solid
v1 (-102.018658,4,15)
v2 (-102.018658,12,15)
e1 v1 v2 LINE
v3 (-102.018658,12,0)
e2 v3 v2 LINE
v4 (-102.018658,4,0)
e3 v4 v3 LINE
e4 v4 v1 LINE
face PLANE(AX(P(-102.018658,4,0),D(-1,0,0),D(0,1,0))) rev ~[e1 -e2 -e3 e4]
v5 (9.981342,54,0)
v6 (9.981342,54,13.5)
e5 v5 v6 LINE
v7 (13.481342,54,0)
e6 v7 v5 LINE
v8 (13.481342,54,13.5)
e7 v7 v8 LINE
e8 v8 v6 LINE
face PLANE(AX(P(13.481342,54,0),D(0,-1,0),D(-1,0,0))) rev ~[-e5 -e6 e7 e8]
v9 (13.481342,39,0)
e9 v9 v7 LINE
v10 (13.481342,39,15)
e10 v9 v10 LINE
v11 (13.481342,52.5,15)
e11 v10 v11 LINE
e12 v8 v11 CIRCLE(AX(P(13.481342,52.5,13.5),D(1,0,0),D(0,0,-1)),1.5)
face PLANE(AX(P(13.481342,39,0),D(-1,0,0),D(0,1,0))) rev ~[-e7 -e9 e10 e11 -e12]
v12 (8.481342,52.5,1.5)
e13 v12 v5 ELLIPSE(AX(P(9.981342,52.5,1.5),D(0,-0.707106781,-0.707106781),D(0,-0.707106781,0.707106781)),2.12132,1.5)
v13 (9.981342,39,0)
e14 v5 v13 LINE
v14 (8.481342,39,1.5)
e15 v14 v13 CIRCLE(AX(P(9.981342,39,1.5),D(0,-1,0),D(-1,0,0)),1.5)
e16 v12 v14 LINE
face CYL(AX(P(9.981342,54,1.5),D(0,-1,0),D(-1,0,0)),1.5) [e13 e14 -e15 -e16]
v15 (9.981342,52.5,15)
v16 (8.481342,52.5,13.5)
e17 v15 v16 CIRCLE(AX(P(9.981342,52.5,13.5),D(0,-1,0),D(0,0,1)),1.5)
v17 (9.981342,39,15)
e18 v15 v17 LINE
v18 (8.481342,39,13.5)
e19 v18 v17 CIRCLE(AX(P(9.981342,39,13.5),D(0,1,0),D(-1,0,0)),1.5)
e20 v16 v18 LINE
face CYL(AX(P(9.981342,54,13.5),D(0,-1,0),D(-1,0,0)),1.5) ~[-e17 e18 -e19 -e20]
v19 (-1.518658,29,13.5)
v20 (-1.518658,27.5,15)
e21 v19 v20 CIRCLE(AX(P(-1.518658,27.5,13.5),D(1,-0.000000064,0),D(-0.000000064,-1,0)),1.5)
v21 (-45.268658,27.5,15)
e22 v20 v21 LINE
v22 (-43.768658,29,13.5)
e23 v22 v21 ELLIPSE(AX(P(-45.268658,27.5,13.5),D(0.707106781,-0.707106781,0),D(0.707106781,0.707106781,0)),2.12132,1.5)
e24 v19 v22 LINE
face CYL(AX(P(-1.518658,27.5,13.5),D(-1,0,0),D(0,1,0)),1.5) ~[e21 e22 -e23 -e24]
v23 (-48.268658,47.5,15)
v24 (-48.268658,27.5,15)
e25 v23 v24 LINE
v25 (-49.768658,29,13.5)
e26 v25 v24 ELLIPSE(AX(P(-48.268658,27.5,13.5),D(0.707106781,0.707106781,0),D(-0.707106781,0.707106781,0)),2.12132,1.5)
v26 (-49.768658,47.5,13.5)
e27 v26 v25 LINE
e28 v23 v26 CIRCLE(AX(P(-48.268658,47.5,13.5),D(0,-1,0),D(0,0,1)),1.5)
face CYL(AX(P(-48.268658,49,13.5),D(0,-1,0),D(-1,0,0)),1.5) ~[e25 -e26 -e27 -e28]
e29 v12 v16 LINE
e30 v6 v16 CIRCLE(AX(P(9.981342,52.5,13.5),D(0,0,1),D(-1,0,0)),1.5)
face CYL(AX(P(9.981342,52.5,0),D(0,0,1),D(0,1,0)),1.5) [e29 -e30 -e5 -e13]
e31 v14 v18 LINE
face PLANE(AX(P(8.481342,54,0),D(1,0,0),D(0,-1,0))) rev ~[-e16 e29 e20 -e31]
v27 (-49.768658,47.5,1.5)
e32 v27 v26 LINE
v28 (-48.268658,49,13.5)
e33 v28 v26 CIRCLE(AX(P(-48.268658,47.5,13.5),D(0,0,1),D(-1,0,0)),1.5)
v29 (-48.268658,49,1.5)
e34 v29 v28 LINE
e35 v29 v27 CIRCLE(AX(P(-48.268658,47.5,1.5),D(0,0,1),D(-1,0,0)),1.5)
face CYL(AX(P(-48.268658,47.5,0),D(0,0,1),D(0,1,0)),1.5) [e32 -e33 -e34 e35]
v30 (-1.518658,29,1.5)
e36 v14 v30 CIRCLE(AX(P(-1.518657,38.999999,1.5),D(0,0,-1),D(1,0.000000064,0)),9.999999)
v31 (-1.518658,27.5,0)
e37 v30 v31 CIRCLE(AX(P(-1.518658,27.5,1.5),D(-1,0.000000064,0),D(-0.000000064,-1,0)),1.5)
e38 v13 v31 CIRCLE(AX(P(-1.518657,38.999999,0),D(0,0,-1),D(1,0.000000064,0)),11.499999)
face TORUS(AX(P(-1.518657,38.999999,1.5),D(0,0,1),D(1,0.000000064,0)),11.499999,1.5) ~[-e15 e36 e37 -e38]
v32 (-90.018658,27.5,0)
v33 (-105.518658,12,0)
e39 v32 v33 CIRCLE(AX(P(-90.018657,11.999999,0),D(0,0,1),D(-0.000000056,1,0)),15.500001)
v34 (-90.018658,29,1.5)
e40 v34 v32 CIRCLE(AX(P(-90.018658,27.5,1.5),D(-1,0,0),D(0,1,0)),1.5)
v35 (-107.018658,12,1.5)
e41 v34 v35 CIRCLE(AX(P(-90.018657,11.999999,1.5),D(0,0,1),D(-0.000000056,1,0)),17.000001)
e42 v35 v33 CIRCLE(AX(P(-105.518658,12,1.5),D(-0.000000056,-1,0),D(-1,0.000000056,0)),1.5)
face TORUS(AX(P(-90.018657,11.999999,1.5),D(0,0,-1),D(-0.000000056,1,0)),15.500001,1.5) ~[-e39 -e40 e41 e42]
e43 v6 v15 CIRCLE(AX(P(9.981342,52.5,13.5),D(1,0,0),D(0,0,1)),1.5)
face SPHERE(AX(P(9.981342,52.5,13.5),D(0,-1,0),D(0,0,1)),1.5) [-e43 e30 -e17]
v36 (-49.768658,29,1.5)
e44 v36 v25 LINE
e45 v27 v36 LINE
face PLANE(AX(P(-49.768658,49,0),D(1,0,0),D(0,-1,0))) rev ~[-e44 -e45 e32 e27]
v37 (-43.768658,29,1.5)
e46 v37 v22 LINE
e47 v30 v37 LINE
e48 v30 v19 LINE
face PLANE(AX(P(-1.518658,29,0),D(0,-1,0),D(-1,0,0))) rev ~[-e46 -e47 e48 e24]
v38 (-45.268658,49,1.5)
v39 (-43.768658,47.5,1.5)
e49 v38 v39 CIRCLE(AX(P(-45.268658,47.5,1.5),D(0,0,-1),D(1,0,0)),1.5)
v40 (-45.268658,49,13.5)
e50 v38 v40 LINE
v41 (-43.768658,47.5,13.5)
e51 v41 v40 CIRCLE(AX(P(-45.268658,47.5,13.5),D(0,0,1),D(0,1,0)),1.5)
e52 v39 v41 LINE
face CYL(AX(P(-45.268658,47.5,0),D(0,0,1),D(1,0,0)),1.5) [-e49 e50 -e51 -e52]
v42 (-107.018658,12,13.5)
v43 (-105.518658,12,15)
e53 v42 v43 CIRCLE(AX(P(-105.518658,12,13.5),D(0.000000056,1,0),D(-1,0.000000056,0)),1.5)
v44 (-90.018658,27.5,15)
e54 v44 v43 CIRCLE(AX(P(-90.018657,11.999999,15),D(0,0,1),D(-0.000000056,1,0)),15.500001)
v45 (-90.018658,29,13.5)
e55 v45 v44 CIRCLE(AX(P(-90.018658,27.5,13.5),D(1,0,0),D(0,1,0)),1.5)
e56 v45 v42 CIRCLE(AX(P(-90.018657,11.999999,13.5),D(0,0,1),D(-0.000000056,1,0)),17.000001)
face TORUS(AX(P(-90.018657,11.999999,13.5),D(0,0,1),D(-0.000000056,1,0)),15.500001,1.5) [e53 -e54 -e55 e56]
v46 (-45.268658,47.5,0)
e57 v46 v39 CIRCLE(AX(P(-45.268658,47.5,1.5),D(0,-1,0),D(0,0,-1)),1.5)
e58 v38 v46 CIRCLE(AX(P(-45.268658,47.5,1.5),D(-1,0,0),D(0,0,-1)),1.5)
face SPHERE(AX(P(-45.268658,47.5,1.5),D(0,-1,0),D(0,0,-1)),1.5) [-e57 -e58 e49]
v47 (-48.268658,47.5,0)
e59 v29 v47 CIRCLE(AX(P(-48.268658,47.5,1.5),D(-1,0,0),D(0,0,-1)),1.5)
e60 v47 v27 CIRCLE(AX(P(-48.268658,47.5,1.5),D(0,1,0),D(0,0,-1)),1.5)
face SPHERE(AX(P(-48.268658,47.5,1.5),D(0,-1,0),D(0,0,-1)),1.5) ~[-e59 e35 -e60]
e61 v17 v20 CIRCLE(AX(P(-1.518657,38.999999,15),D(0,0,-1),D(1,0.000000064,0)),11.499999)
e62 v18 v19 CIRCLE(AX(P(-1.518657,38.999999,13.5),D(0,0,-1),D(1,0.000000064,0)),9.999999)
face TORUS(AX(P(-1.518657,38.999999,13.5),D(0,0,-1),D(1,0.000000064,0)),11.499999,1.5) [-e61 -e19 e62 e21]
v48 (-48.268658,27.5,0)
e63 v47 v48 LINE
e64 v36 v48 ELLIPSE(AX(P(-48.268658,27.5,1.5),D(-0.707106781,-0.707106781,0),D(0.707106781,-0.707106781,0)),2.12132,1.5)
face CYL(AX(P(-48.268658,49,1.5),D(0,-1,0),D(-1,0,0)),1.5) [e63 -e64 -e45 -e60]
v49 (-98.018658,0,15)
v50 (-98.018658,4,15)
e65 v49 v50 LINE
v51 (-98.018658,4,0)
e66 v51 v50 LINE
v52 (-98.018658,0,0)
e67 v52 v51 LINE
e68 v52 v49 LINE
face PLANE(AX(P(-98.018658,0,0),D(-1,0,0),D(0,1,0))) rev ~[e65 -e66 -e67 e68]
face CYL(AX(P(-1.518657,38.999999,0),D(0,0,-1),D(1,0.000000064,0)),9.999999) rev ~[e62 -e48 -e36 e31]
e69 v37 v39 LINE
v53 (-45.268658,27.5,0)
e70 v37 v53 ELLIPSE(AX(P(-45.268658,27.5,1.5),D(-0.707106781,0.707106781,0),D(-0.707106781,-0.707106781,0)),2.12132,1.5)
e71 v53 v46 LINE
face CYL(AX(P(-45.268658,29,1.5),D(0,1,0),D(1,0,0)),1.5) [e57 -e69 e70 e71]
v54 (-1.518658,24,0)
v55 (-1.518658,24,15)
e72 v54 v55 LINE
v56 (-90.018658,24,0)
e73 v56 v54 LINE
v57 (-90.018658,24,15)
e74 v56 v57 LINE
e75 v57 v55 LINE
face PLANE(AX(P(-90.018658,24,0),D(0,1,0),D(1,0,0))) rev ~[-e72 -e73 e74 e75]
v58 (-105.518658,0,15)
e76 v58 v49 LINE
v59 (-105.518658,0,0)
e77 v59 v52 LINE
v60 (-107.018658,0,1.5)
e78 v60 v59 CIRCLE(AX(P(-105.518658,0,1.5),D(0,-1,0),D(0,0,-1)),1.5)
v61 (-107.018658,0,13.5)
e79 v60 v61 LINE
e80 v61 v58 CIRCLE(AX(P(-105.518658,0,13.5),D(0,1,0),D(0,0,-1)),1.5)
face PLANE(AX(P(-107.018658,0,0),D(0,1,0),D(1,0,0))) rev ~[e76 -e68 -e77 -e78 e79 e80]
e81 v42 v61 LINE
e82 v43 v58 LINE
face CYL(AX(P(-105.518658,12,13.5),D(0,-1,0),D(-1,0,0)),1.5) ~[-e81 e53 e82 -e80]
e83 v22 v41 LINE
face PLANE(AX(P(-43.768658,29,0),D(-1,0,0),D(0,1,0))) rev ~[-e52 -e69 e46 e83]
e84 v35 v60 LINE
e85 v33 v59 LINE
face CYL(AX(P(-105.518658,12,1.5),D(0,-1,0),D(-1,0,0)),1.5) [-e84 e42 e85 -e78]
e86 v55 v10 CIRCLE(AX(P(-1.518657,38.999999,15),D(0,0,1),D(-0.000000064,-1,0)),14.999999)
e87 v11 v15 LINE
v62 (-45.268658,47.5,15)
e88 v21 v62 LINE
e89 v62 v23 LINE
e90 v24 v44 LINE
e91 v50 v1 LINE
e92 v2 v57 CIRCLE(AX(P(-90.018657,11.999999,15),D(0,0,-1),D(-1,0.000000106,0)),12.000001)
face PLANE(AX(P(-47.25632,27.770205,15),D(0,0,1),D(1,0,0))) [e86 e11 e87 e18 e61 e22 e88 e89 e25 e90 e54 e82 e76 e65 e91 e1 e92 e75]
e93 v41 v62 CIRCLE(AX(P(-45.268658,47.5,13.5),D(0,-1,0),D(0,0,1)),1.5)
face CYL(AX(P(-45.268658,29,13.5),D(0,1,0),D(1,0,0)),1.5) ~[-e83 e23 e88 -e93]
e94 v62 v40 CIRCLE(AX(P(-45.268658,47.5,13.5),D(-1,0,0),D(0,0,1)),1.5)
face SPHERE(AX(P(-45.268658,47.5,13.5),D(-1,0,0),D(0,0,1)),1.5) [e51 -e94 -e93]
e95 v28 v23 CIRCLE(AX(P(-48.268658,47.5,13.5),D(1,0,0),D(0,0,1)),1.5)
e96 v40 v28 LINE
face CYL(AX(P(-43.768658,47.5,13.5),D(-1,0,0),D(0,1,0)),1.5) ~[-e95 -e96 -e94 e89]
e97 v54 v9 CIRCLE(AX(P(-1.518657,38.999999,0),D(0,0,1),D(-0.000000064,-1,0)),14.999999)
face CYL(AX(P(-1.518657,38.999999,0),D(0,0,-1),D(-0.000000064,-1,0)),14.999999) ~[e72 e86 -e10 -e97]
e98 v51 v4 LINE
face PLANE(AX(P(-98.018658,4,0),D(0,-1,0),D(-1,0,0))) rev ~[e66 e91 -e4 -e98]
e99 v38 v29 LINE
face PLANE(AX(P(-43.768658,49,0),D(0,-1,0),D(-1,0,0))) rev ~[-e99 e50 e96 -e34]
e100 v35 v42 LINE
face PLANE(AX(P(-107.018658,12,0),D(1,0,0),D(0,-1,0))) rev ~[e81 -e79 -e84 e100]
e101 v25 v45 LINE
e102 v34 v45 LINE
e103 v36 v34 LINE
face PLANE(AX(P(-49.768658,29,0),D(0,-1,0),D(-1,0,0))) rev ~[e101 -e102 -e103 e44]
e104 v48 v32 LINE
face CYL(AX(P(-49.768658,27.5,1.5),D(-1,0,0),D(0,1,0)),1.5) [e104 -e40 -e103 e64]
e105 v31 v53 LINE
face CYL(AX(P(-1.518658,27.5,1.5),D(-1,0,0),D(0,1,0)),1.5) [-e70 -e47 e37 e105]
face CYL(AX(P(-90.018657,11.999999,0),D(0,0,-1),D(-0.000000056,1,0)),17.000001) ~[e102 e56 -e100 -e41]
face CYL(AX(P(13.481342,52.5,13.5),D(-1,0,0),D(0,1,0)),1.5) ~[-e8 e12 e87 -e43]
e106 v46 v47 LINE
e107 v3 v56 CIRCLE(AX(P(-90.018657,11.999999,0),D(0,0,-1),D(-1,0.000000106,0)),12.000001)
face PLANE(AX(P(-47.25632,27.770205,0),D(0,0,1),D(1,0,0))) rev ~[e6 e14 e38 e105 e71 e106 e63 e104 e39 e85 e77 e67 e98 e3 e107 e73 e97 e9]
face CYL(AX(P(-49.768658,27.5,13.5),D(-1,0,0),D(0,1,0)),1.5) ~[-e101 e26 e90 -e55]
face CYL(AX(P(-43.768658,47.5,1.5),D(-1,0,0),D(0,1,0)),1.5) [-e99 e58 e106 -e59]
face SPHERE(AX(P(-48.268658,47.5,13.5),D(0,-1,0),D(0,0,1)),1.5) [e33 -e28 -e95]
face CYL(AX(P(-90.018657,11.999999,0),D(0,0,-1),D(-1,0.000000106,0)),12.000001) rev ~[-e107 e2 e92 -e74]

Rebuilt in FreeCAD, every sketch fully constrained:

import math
import FreeCAD as App
import Part
import Sketcher

V = App.Vector
Q = App.Units.Quantity


def edges_at(feature, points):
    """Names of the edges that pass closest to the given points."""
    edges = feature.Shape.Edges
    near = lambda p: min(range(len(edges)), key=lambda i: edges[i].distToShape(Part.Vertex(*p))[0])
    return sorted({f"Edge{near(p) + 1}" for p in points})

doc = App.newDocument("Part")
params = doc.addObject("Spreadsheet::Sheet", "Params")
for row, (alias, value) in enumerate([
    ("sketch1_radius", "17.000001 mm"),
    ("sketch1_radius2", "12.000001 mm"),
    ("sketch1_radius3", "14.999999 mm"),
    ("sketch1_width", "9 mm"),
    ("sketch1_width2", "6 mm"),
    ("pad1_length", "15 mm"),
    ("fillet_radius", "1.5 mm"),
], start=1):
    params.set(f"A{row}", alias)
    params.set(f"B{row}", "=" + value)
    params.setAlias(f"B{row}", alias)

body = doc.addObject("PartDesign::Body", "Body")

# Sketch on XY plane
sketch1 = body.newObject("Sketcher::SketchObject", "Sketch")
sketch1.AttachmentSupport = (doc.getObject("XY_Plane"), [""])
sketch1.MapMode = "FlatFace"
sketch1.addGeometry(Part.LineSegment(V(-49.8, 29, 0), V(-90, 29, 0)), False)
sketch1.addGeometry(Part.ArcOfCircle(Part.Circle(V(-90, 12, 0), V(0, 0, 1), 17), math.radians(90), math.radians(180)), False)
sketch1.addGeometry(Part.LineSegment(V(-107, 12, 0), V(-107, 0, 0)), False)
sketch1.addGeometry(Part.LineSegment(V(-107, 0, 0), V(-98, 0, 0)), False)
sketch1.addGeometry(Part.LineSegment(V(-98, 0, 0), V(-98, 4, 0)), False)
sketch1.addGeometry(Part.LineSegment(V(-98, 4, 0), V(-102, 4, 0)), False)
sketch1.addGeometry(Part.LineSegment(V(-102, 4, 0), V(-102, 12, 0)), False)
sketch1.addGeometry(Part.ArcOfCircle(Part.Circle(V(-90, 12, 0), V(0, 0, 1), 12), math.radians(90), math.radians(180)), False)
sketch1.addGeometry(Part.LineSegment(V(-90, 24, 0), V(-1.5, 24, 0)), False)
sketch1.addGeometry(Part.ArcOfCircle(Part.Circle(V(-1.5, 39, 0), V(0, 0, 1), 15), math.radians(-90), math.radians(0)), False)
sketch1.addGeometry(Part.LineSegment(V(13.5, 39, 0), V(13.5, 54, 0)), False)
sketch1.addGeometry(Part.LineSegment(V(13.5, 54, 0), V(8.5, 54, 0)), False)
sketch1.addGeometry(Part.LineSegment(V(8.5, 54, 0), V(8.5, 39, 0)), False)
sketch1.addGeometry(Part.ArcOfCircle(Part.Circle(V(-1.5, 39, 0), V(0, 0, 1), 10), math.radians(-90), math.radians(0)), False)
sketch1.addGeometry(Part.LineSegment(V(-1.5, 29, 0), V(-43.8, 29, 0)), False)
sketch1.addGeometry(Part.LineSegment(V(-43.8, 29, 0), V(-43.8, 49, 0)), False)
sketch1.addGeometry(Part.LineSegment(V(-43.8, 49, 0), V(-49.8, 49, 0)), False)
sketch1.addGeometry(Part.LineSegment(V(-49.8, 49, 0), V(-49.8, 29, 0)), False)
sketch1.addConstraint(Sketcher.Constraint("Tangent", 0, 2, 1, 1))
sketch1.addConstraint(Sketcher.Constraint("Tangent", 1, 2, 2, 1))
sketch1.addConstraint(Sketcher.Constraint("Coincident", 2, 2, 3, 1))
sketch1.addConstraint(Sketcher.Constraint("Coincident", 3, 2, 4, 1))
sketch1.addConstraint(Sketcher.Constraint("Coincident", 4, 2, 5, 1))
sketch1.addConstraint(Sketcher.Constraint("Coincident", 5, 2, 6, 1))
sketch1.addConstraint(Sketcher.Constraint("Tangent", 6, 2, 7, 2))
sketch1.addConstraint(Sketcher.Constraint("Tangent", 7, 1, 8, 1))
sketch1.addConstraint(Sketcher.Constraint("Tangent", 8, 2, 9, 1))
sketch1.addConstraint(Sketcher.Constraint("Tangent", 9, 2, 10, 1))
sketch1.addConstraint(Sketcher.Constraint("Coincident", 10, 2, 11, 1))
sketch1.addConstraint(Sketcher.Constraint("Coincident", 11, 2, 12, 1))
sketch1.addConstraint(Sketcher.Constraint("Tangent", 12, 2, 13, 2))
sketch1.addConstraint(Sketcher.Constraint("Tangent", 13, 1, 14, 1))
sketch1.addConstraint(Sketcher.Constraint("Coincident", 14, 2, 15, 1))
sketch1.addConstraint(Sketcher.Constraint("Coincident", 15, 2, 16, 1))
sketch1.addConstraint(Sketcher.Constraint("Coincident", 16, 2, 17, 1))
sketch1.addConstraint(Sketcher.Constraint("Coincident", 17, 2, 0, 1))
sketch1.addConstraint(Sketcher.Constraint("Horizontal", 0))
sketch1.addConstraint(Sketcher.Constraint("Vertical", 2))
sketch1.addConstraint(Sketcher.Constraint("Horizontal", 3))
sketch1.addConstraint(Sketcher.Constraint("Vertical", 4))
sketch1.addConstraint(Sketcher.Constraint("Horizontal", 5))
sketch1.addConstraint(Sketcher.Constraint("Vertical", 6))
sketch1.addConstraint(Sketcher.Constraint("Horizontal", 8))
sketch1.addConstraint(Sketcher.Constraint("Vertical", 10))
sketch1.addConstraint(Sketcher.Constraint("Horizontal", 11))
sketch1.addConstraint(Sketcher.Constraint("Vertical", 12))
sketch1.addConstraint(Sketcher.Constraint("Horizontal", 14))
sketch1.addConstraint(Sketcher.Constraint("Vertical", 15))
sketch1.addConstraint(Sketcher.Constraint("Horizontal", 16))
sketch1.addConstraint(Sketcher.Constraint("Vertical", 17))
sketch1.addConstraint(Sketcher.Constraint("Coincident", 7, 3, 1, 3))
sketch1.addConstraint(Sketcher.Constraint("Coincident", 13, 3, 9, 3))
sketch1.addConstraint(Sketcher.Constraint("PointOnObject", 2, 2, -1))
sketch1.addConstraint(Sketcher.Constraint("Horizontal", 0, 2, 13, 1))
sketch1.addConstraint(Sketcher.Constraint("Equal", 5, 4))
sketch1.addConstraint(Sketcher.Constraint("Radius", 1, Q("17.000001 mm")))
sketch1.addConstraint(Sketcher.Constraint("Radius", 7, Q("12.000001 mm")))
sketch1.addConstraint(Sketcher.Constraint("Radius", 9, Q("14.999999 mm")))
sketch1.addConstraint(Sketcher.Constraint("DistanceX", 3, 1, 3, 2, Q("9 mm")))
sketch1.addConstraint(Sketcher.Constraint("DistanceX", 16, 2, 16, 1, Q("6 mm")))
sketch1.addConstraint(Sketcher.Constraint("DistanceY", 2, 2, 2, 1, Q("12 mm")))
sketch1.addConstraint(Sketcher.Constraint("DistanceY", 10, 1, 10, 2, Q("15 mm")))
sketch1.addConstraint(Sketcher.Constraint("DistanceY", 15, 1, 15, 2, Q("20 mm")))
sketch1.addConstraint(Sketcher.Constraint("DistanceX", 8, 1, 8, 2, Q("88.5 mm")))
sketch1.addConstraint(Sketcher.Constraint("DistanceX", 0, 2, 0, 1, Q("40.25 mm")))
sketch1.addConstraint(Sketcher.Constraint("DistanceX", 0, 2, -1, 1, Q("90.018658 mm")))
sketch1.setExpression("Constraints[37]", "Params.sketch1_radius")
sketch1.setExpression("Constraints[38]", "Params.sketch1_radius2")
sketch1.setExpression("Constraints[39]", "Params.sketch1_radius3")
sketch1.setExpression("Constraints[40]", "Params.sketch1_width")
sketch1.setExpression("Constraints[41]", "Params.sketch1_width2")
pad1 = body.newObject("PartDesign::Pad", "Pad")
pad1.Profile = sketch1
pad1.setExpression("Length", "Params.pad1_length")
doc.recompute()

fillet = body.newObject("PartDesign::Fillet", "Fillet")
fillet.Base = (pad1, edges_at(pad1, [
    (5.552, 31.929, 0),
    (-43.769, 39, 0),
    (-49.769, 39, 0),
    (-69.894, 29, 0),
    (-46.769, 49, 0),
    (-102.039, 24.021, 15),
    (-107.019, 6, 15),
    (-49.769, 39, 15),
    (-46.769, 49, 15),
    (-43.769, 39, 15),
    (-22.644, 29, 15),
    (10.981, 54, 15),
    (-49.769, 49, 7.5),
    (-43.769, 49, 7.5),
    (8.481, 54, 7.5),
]))
fillet.setExpression("Radius", "Params.fillet_radius")

doc.recompute()
